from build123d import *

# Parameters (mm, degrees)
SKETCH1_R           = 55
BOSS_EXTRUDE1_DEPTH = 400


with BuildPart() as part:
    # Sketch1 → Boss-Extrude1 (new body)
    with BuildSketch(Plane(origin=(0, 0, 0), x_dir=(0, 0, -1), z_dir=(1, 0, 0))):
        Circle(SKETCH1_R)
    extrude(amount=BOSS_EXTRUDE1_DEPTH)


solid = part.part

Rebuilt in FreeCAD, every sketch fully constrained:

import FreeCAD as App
import Part
import Sketcher
from FreeCAD import Vector

doc = App.newDocument("Part")
body = doc.addObject("PartDesign::Body", "Body")

# Sketch on YZ plane
sketch1 = body.newObject("Sketcher::SketchObject", "Sketch")
sketch1.AttachmentSupport = (doc.getObject("YZ_Plane"), [""])
sketch1.MapMode = "FlatFace"
sketch1.addGeometry(Part.Circle(Vector(0, 0, 0), Vector(0, 0, 1), 55), False)
sketch1.addConstraint([
    Sketcher.Constraint("Coincident", 0, 3, -1, 1),
    Sketcher.Constraint("Diameter", 0, 110.0),
])
pad1 = body.newObject("PartDesign::Pad", "Pad")
pad1.Profile = sketch1
pad1.Length = 400

doc.recompute()
